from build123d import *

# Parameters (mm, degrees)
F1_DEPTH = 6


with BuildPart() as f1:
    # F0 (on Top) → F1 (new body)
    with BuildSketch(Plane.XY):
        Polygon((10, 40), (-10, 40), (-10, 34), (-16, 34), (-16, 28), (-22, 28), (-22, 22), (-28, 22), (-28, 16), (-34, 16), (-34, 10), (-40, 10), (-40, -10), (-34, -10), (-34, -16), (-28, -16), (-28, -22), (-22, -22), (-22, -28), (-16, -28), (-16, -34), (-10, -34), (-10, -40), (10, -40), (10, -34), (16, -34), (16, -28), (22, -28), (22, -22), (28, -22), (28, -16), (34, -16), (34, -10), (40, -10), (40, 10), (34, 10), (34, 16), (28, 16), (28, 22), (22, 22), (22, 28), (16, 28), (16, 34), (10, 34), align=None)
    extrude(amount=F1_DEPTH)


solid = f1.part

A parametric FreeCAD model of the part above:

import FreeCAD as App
import Part
import Sketcher

V = App.Vector
Q = App.Units.Quantity

doc = App.newDocument("Part")
params = doc.addObject("Spreadsheet::Sheet", "Params")
for row, (alias, value) in enumerate([
    ("sketch1_width", "20 mm"),
    ("sketch1_width2", "6 mm"),
    ("pad1_length", "6 mm"),
], start=1):
    params.set(f"A{row}", alias)
    params.set(f"B{row}", "=" + value)
    params.setAlias(f"B{row}", alias)

body = doc.addObject("PartDesign::Body", "Body")

# Sketch on XY plane
sketch1 = body.newObject("Sketcher::SketchObject", "Sketch")
sketch1.AttachmentSupport = (doc.getObject("XY_Plane"), [""])
sketch1.MapMode = "FlatFace"
sketch1.addGeometry([
    Part.LineSegment(V(10, 40, 0), V(-10, 40, 0)),  # 0
    Part.LineSegment(V(-10, 40, 0), V(-10, 34, 0)),  # 1
    Part.LineSegment(V(-10, 34, 0), V(-16, 34, 0)),  # 2
    Part.LineSegment(V(-16, 34, 0), V(-16, 28, 0)),  # 3
    Part.LineSegment(V(-16, 28, 0), V(-22, 28, 0)),  # 4
    Part.LineSegment(V(-22, 28, 0), V(-22, 22, 0)),  # 5
    Part.LineSegment(V(-22, 22, 0), V(-28, 22, 0)),  # 6
    Part.LineSegment(V(-28, 22, 0), V(-28, 16, 0)),  # 7
    Part.LineSegment(V(-28, 16, 0), V(-34, 16, 0)),  # 8
    Part.LineSegment(V(-34, 16, 0), V(-34, 10, 0)),  # 9
    Part.LineSegment(V(-34, 10, 0), V(-40, 10, 0)),  # 10
    Part.LineSegment(V(-40, 10, 0), V(-40, -10, 0)),  # 11
    Part.LineSegment(V(-40, -10, 0), V(-34, -10, 0)),  # 12
    Part.LineSegment(V(-34, -10, 0), V(-34, -16, 0)),  # 13
    Part.LineSegment(V(-34, -16, 0), V(-28, -16, 0)),  # 14
    Part.LineSegment(V(-28, -16, 0), V(-28, -22, 0)),  # 15
    Part.LineSegment(V(-28, -22, 0), V(-22, -22, 0)),  # 16
    Part.LineSegment(V(-22, -22, 0), V(-22, -28, 0)),  # 17
    Part.LineSegment(V(-22, -28, 0), V(-16, -28, 0)),  # 18
    Part.LineSegment(V(-16, -28, 0), V(-16, -34, 0)),  # 19
    Part.LineSegment(V(-16, -34, 0), V(-10, -34, 0)),  # 20
    Part.LineSegment(V(-10, -34, 0), V(-10, -40, 0)),  # 21
    Part.LineSegment(V(-10, -40, 0), V(10, -40, 0)),  # 22
    Part.LineSegment(V(10, -40, 0), V(10, -34, 0)),  # 23
    Part.LineSegment(V(10, -34, 0), V(16, -34, 0)),  # 24
    Part.LineSegment(V(16, -34, 0), V(16, -28, 0)),  # 25
    Part.LineSegment(V(16, -28, 0), V(22, -28, 0)),  # 26
    Part.LineSegment(V(22, -28, 0), V(22, -22, 0)),  # 27
    Part.LineSegment(V(22, -22, 0), V(28, -22, 0)),  # 28
    Part.LineSegment(V(28, -22, 0), V(28, -16, 0)),  # 29
    Part.LineSegment(V(28, -16, 0), V(34, -16, 0)),  # 30
    Part.LineSegment(V(34, -16, 0), V(34, -10, 0)),  # 31
    Part.LineSegment(V(34, -10, 0), V(40, -10, 0)),  # 32
    Part.LineSegment(V(40, -10, 0), V(40, 10, 0)),  # 33
    Part.LineSegment(V(40, 10, 0), V(34, 10, 0)),  # 34
    Part.LineSegment(V(34, 10, 0), V(34, 16, 0)),  # 35
    Part.LineSegment(V(34, 16, 0), V(28, 16, 0)),  # 36
    Part.LineSegment(V(28, 16, 0), V(28, 22, 0)),  # 37
    Part.LineSegment(V(28, 22, 0), V(22, 22, 0)),  # 38
    Part.LineSegment(V(22, 22, 0), V(22, 28, 0)),  # 39
    Part.LineSegment(V(22, 28, 0), V(16, 28, 0)),  # 40
    Part.LineSegment(V(16, 28, 0), V(16, 34, 0)),  # 41
    Part.LineSegment(V(16, 34, 0), V(10, 34, 0)),  # 42
    Part.LineSegment(V(10, 34, 0), V(10, 40, 0)),  # 43
], False)
sketch1.addConstraint([
    Sketcher.Constraint("Coincident", 0, 2, 1, 1),
    Sketcher.Constraint("Coincident", 1, 2, 2, 1),
    Sketcher.Constraint("Coincident", 2, 2, 3, 1),
    Sketcher.Constraint("Coincident", 3, 2, 4, 1),
    Sketcher.Constraint("Coincident", 4, 2, 5, 1),
    Sketcher.Constraint("Coincident", 5, 2, 6, 1),
    Sketcher.Constraint("Coincident", 6, 2, 7, 1),
    Sketcher.Constraint("Coincident", 7, 2, 8, 1),
    Sketcher.Constraint("Coincident", 8, 2, 9, 1),
    Sketcher.Constraint("Coincident", 9, 2, 10, 1),
    Sketcher.Constraint("Coincident", 10, 2, 11, 1),
    Sketcher.Constraint("Coincident", 11, 2, 12, 1),
    Sketcher.Constraint("Coincident", 12, 2, 13, 1),
    Sketcher.Constraint("Coincident", 13, 2, 14, 1),
    Sketcher.Constraint("Coincident", 14, 2, 15, 1),
    Sketcher.Constraint("Coincident", 15, 2, 16, 1),
    Sketcher.Constraint("Coincident", 16, 2, 17, 1),
    Sketcher.Constraint("Coincident", 17, 2, 18, 1),
    Sketcher.Constraint("Coincident", 18, 2, 19, 1),
    Sketcher.Constraint("Coincident", 19, 2, 20, 1),
    Sketcher.Constraint("Coincident", 20, 2, 21, 1),
    Sketcher.Constraint("Coincident", 21, 2, 22, 1),
    Sketcher.Constraint("Coincident", 22, 2, 23, 1),
    Sketcher.Constraint("Coincident", 23, 2, 24, 1),
    Sketcher.Constraint("Coincident", 24, 2, 25, 1),
    Sketcher.Constraint("Coincident", 25, 2, 26, 1),
    Sketcher.Constraint("Coincident", 26, 2, 27, 1),
    Sketcher.Constraint("Coincident", 27, 2, 28, 1),
    Sketcher.Constraint("Coincident", 28, 2, 29, 1),
    Sketcher.Constraint("Coincident", 29, 2, 30, 1),
    Sketcher.Constraint("Coincident", 30, 2, 31, 1),
    Sketcher.Constraint("Coincident", 31, 2, 32, 1),
    Sketcher.Constraint("Coincident", 32, 2, 33, 1),
    Sketcher.Constraint("Coincident", 33, 2, 34, 1),
    Sketcher.Constraint("Coincident", 34, 2, 35, 1),
    Sketcher.Constraint("Coincident", 35, 2, 36, 1),
    Sketcher.Constraint("Coincident", 36, 2, 37, 1),
    Sketcher.Constraint("Coincident", 37, 2, 38, 1),
    Sketcher.Constraint("Coincident", 38, 2, 39, 1),
    Sketcher.Constraint("Coincident", 39, 2, 40, 1),
    Sketcher.Constraint("Coincident", 40, 2, 41, 1),
    Sketcher.Constraint("Coincident", 41, 2, 42, 1),
    Sketcher.Constraint("Coincident", 42, 2, 43, 1),
    Sketcher.Constraint("Coincident", 43, 2, 0, 1),
    Sketcher.Constraint("Horizontal", 0),
    Sketcher.Constraint("Vertical", 1),
    Sketcher.Constraint("Horizontal", 2),
    Sketcher.Constraint("Vertical", 3),
    Sketcher.Constraint("Horizontal", 4),
    Sketcher.Constraint("Vertical", 5),
    Sketcher.Constraint("Horizontal", 6),
    Sketcher.Constraint("Vertical", 7),
    Sketcher.Constraint("Horizontal", 8),
    Sketcher.Constraint("Vertical", 9),
    Sketcher.Constraint("Horizontal", 10),
    Sketcher.Constraint("Vertical", 11),
    Sketcher.Constraint("Horizontal", 12),
    Sketcher.Constraint("Vertical", 13),
    Sketcher.Constraint("Horizontal", 14),
    Sketcher.Constraint("Vertical", 15),
    Sketcher.Constraint("Horizontal", 16),
    Sketcher.Constraint("Vertical", 17),
    Sketcher.Constraint("Horizontal", 18),
    Sketcher.Constraint("Vertical", 19),
    Sketcher.Constraint("Horizontal", 20),
    Sketcher.Constraint("Vertical", 21),
    Sketcher.Constraint("Horizontal", 22),
    Sketcher.Constraint("Vertical", 23),
    Sketcher.Constraint("Horizontal", 24),
    Sketcher.Constraint("Vertical", 25),
    Sketcher.Constraint("Horizontal", 26),
    Sketcher.Constraint("Vertical", 27),
    Sketcher.Constraint("Horizontal", 28),
    Sketcher.Constraint("Vertical", 29),
    Sketcher.Constraint("Horizontal", 30),
    Sketcher.Constraint("Vertical", 31),
    Sketcher.Constraint("Horizontal", 32),
    Sketcher.Constraint("Vertical", 33),
    Sketcher.Constraint("Horizontal", 34),
    Sketcher.Constraint("Vertical", 35),
    Sketcher.Constraint("Horizontal", 36),
    Sketcher.Constraint("Vertical", 37),
    Sketcher.Constraint("Horizontal", 38),
    Sketcher.Constraint("Vertical", 39),
    Sketcher.Constraint("Horizontal", 40),
    Sketcher.Constraint("Vertical", 41),
    Sketcher.Constraint("Horizontal", 42),
    Sketcher.Constraint("Vertical", 43),
    Sketcher.Constraint("Symmetric", 0, 2, 22, 2, -1, 1),
    Sketcher.Constraint("Symmetric", 2, 2, 24, 2, -1, 1),
    Sketcher.Constraint("Symmetric", 4, 2, 26, 2, -1, 1),
    Sketcher.Constraint("Symmetric", 6, 2, 28, 2, -1, 1),
    Sketcher.Constraint("Symmetric", 8, 2, 30, 2, -1, 1),
    Sketcher.Constraint("Symmetric", 10, 2, 32, 2, -1, 1),
    Sketcher.Constraint("Symmetric", 12, 2, 34, 2, -1, 1),
    Sketcher.Constraint("Symmetric", 14, 2, 36, 2, -1, 1),
    Sketcher.Constraint("Symmetric", 16, 2, 38, 2, -1, 1),
    Sketcher.Constraint("Symmetric", 18, 2, 40, 2, -1, 1),
    Sketcher.Constraint("Symmetric", 20, 2, 42, 2, -1, 1),
    Sketcher.Constraint("Symmetric", 20, 2, 23, 2, -2),
    Sketcher.Constraint("Symmetric", 18, 2, 25, 2, -2),
    Sketcher.Constraint("Symmetric", 16, 2, 27, 2, -2),
    Sketcher.Constraint("Symmetric", 14, 2, 29, 2, -2),
    Sketcher.Constraint("Symmetric", 12, 2, 31, 2, -2),
    Sketcher.Constraint("Equal", 2, 4),
    Sketcher.Constraint("Equal", 4, 6),
    Sketcher.Constraint("Equal", 6, 8),
    Sketcher.Constraint("Equal", 8, 10),
    Sketcher.Constraint("Equal", 42, 1),
    Sketcher.Constraint("Equal", 1, 3),
    Sketcher.Constraint("Equal", 3, 5),
    Sketcher.Constraint("Equal", 5, 7),
    Sketcher.Constraint("Equal", 7, 9),
    Sketcher.Constraint("Equal", 22, 11),
    Sketcher.Constraint("DistanceX", 0, 2, 0, 1, Q("20 mm")),
    Sketcher.Constraint("DistanceX", 2, 2, 2, 1, Q("6 mm")),
])
sketch1.setExpression("Constraints[114]", "Params.sketch1_width")
sketch1.setExpression("Constraints[115]", "Params.sketch1_width2")
pad1 = body.newObject("PartDesign::Pad", "Pad")
pad1.Profile = sketch1
pad1.setExpression("Length", "Params.pad1_length")

doc.recompute()
